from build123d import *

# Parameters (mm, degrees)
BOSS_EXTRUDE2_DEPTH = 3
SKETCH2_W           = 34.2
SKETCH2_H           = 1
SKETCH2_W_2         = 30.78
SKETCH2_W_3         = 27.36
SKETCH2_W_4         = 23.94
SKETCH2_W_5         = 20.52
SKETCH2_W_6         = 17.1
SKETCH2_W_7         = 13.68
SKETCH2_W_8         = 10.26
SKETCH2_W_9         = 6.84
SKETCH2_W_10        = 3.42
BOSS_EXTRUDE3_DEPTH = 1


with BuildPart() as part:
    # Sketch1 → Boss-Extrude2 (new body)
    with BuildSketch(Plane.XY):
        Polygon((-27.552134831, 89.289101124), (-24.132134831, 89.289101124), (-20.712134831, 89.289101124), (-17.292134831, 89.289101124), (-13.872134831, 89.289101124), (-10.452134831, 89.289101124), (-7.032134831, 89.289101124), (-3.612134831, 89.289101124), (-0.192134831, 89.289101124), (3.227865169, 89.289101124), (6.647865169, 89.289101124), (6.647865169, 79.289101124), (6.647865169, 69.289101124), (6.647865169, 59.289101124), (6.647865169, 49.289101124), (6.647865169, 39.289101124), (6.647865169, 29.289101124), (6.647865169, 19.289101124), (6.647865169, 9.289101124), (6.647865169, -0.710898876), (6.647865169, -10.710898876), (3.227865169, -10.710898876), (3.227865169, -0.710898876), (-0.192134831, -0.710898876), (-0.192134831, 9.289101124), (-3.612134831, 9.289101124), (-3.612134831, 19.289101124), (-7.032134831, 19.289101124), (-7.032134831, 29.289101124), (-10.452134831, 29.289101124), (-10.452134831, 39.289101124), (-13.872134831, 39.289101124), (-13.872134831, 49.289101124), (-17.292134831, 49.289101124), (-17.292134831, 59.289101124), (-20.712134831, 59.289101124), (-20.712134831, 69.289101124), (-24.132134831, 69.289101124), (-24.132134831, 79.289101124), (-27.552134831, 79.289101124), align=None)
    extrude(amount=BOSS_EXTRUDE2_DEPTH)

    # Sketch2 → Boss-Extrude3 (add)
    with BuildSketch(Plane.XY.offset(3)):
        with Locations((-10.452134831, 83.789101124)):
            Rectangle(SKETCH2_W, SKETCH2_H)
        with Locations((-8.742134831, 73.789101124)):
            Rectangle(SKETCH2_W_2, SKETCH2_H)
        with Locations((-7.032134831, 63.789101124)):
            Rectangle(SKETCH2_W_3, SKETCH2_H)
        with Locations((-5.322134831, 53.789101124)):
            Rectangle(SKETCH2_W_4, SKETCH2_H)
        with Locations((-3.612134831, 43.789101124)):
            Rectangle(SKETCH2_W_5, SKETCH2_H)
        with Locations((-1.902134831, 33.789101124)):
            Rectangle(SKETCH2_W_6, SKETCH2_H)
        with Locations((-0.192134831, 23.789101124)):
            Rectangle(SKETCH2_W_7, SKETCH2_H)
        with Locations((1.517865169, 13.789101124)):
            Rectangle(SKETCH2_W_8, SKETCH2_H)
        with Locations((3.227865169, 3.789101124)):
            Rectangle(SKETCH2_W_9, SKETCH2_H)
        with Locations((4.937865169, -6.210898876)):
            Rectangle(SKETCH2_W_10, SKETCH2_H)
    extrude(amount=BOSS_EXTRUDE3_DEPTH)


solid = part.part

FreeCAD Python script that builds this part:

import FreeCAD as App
import Part
import Sketcher
from FreeCAD import Vector
Q = App.Units.Quantity


def add_polygon(sketch, points):
    """Adds a closed chain of lines whose ends are joined by coincident constraints."""
    first, n = sketch.GeometryCount, len(points)
    for a, b in zip(points, points[1:] + points[:1]):
        sketch.addGeometry(Part.LineSegment(App.Vector(*a, 0), App.Vector(*b, 0)), False)
    for i in range(n):
        sketch.addConstraint(Sketcher.Constraint("Coincident", first + i, 2, first + (i + 1) % n, 1))

doc = App.newDocument("Part")
body = doc.addObject("PartDesign::Body", "Body")

sketch1 = body.newObject("Sketcher::SketchObject", "Sketch")
sketch1.AttachmentSupport = (doc.getObject("XY_Plane"), [""])
sketch1.MapMode = "FlatFace"
add_polygon(sketch1, [(6.6, 89.3), (-27.6, 89.3), (-27.6, 79.3), (-24.1, 79.3), (-24.1, 69.3), (-20.7, 69.3), (-20.7, 59.3), (-17.3, 59.3), (-17.3, 49.3), (-13.9, 49.3), (-13.9, 39.3), (-10.5, 39.3), (-10.5, 29.3), (-7, 29.3), (-7, 19.3), (-3.6, 19.3), (-3.6, 9.3), (-0.2, 9.3), (-0.2, -0.7), (3.2, -0.7), (3.2, -10.7), (6.6, -10.7)])
sketch1.addConstraint(Sketcher.Constraint("Horizontal", 0))
sketch1.addConstraint(Sketcher.Constraint("Vertical", 1))
sketch1.addConstraint(Sketcher.Constraint("Horizontal", 2))
sketch1.addConstraint(Sketcher.Constraint("Vertical", 3))
sketch1.addConstraint(Sketcher.Constraint("Horizontal", 4))
sketch1.addConstraint(Sketcher.Constraint("Vertical", 5))
sketch1.addConstraint(Sketcher.Constraint("Horizontal", 6))
sketch1.addConstraint(Sketcher.Constraint("Vertical", 7))
sketch1.addConstraint(Sketcher.Constraint("Horizontal", 8))
sketch1.addConstraint(Sketcher.Constraint("Vertical", 9))
sketch1.addConstraint(Sketcher.Constraint("Horizontal", 10))
sketch1.addConstraint(Sketcher.Constraint("Vertical", 11))
sketch1.addConstraint(Sketcher.Constraint("Horizontal", 12))
sketch1.addConstraint(Sketcher.Constraint("Vertical", 13))
sketch1.addConstraint(Sketcher.Constraint("Horizontal", 14))
sketch1.addConstraint(Sketcher.Constraint("Vertical", 15))
sketch1.addConstraint(Sketcher.Constraint("Horizontal", 16))
sketch1.addConstraint(Sketcher.Constraint("Vertical", 17))
sketch1.addConstraint(Sketcher.Constraint("Horizontal", 18))
sketch1.addConstraint(Sketcher.Constraint("Vertical", 19))
sketch1.addConstraint(Sketcher.Constraint("Horizontal", 20))
sketch1.addConstraint(Sketcher.Constraint("Vertical", 21))
sketch1.addConstraint(Sketcher.Constraint("Equal", 2, 4))
sketch1.addConstraint(Sketcher.Constraint("Equal", 4, 6))
sketch1.addConstraint(Sketcher.Constraint("Equal", 6, 8))
sketch1.addConstraint(Sketcher.Constraint("Equal", 8, 10))
sketch1.addConstraint(Sketcher.Constraint("Equal", 10, 12))
sketch1.addConstraint(Sketcher.Constraint("Equal", 12, 14))
sketch1.addConstraint(Sketcher.Constraint("Equal", 14, 16))
sketch1.addConstraint(Sketcher.Constraint("Equal", 16, 18))
sketch1.addConstraint(Sketcher.Constraint("Equal", 18, 20))
sketch1.addConstraint(Sketcher.Constraint("Equal", 1, 3))
sketch1.addConstraint(Sketcher.Constraint("Equal", 3, 5))
sketch1.addConstraint(Sketcher.Constraint("Equal", 5, 7))
sketch1.addConstraint(Sketcher.Constraint("Equal", 7, 9))
sketch1.addConstraint(Sketcher.Constraint("Equal", 9, 11))
sketch1.addConstraint(Sketcher.Constraint("Equal", 11, 13))
sketch1.addConstraint(Sketcher.Constraint("Equal", 13, 15))
sketch1.addConstraint(Sketcher.Constraint("Equal", 15, 17))
sketch1.addConstraint(Sketcher.Constraint("Equal", 17, 19))
sketch1.addConstraint(Sketcher.Constraint("DistanceY", 1, 2, 1, 1, Q("10 mm")))
sketch1.addConstraint(Sketcher.Constraint("DistanceX", 0, 2, 0, 1, Q("34.2 mm")))
sketch1.addConstraint(Sketcher.Constraint("DistanceY", -1, 1, 0, 2, Q("89.289101 mm")))
sketch1.addConstraint(Sketcher.Constraint("DistanceX", 0, 2, -1, 1, Q("27.552135 mm")))
pad1 = body.newObject("PartDesign::Pad", "Pad")
pad1.Profile = sketch1
pad1.Length = 3

sketch2 = body.newObject("Sketcher::SketchObject", "Sketch001")
sketch2.AttachmentSupport = (doc.getObject("XY_Plane"), [""])
sketch2.MapMode = "FlatFace"
sketch2.AttachmentOffset = App.Placement(Vector(0, 0, 3), App.Rotation())
add_polygon(sketch2, [(-27.6, 84.3), (-27.6, 83.3), (6.6, 83.3), (6.6, 84.3)])
add_polygon(sketch2, [(-24.1, 74.3), (-24.1, 73.3), (6.6, 73.3), (6.6, 74.3)])
add_polygon(sketch2, [(-20.7, 64.3), (-20.7, 63.3), (6.6, 63.3), (6.6, 64.3)])
add_polygon(sketch2, [(-17.3, 54.3), (-17.3, 53.3), (6.6, 53.3), (6.6, 54.3)])
add_polygon(sketch2, [(-13.9, 44.3), (-13.9, 43.3), (6.6, 43.3), (6.6, 44.3)])
add_polygon(sketch2, [(-10.5, 34.3), (-10.5, 33.3), (6.6, 33.3), (6.6, 34.3)])
add_polygon(sketch2, [(-7, 24.3), (-7, 23.3), (6.6, 23.3), (6.6, 24.3)])
add_polygon(sketch2, [(-3.6, 14.3), (-3.6, 13.3), (6.6, 13.3), (6.6, 14.3)])
add_polygon(sketch2, [(-0.2, 4.3), (-0.2, 3.3), (6.6, 3.3), (6.6, 4.3)])
add_polygon(sketch2, [(3.2, -5.7), (3.2, -6.7), (6.6, -6.7), (6.6, -5.7)])
sketch2.addConstraint(Sketcher.Constraint("Vertical", 0))
sketch2.addConstraint(Sketcher.Constraint("Horizontal", 1))
sketch2.addConstraint(Sketcher.Constraint("Vertical", 2))
sketch2.addConstraint(Sketcher.Constraint("Horizontal", 3))
sketch2.addConstraint(Sketcher.Constraint("Vertical", 4))
sketch2.addConstraint(Sketcher.Constraint("Horizontal", 5))
sketch2.addConstraint(Sketcher.Constraint("Vertical", 6))
sketch2.addConstraint(Sketcher.Constraint("Horizontal", 7))
sketch2.addConstraint(Sketcher.Constraint("Vertical", 8))
sketch2.addConstraint(Sketcher.Constraint("Horizontal", 9))
sketch2.addConstraint(Sketcher.Constraint("Vertical", 10))
sketch2.addConstraint(Sketcher.Constraint("Horizontal", 11))
sketch2.addConstraint(Sketcher.Constraint("Vertical", 12))
sketch2.addConstraint(Sketcher.Constraint("Horizontal", 13))
sketch2.addConstraint(Sketcher.Constraint("Vertical", 14))
sketch2.addConstraint(Sketcher.Constraint("Horizontal", 15))
sketch2.addConstraint(Sketcher.Constraint("Vertical", 16))
sketch2.addConstraint(Sketcher.Constraint("Horizontal", 17))
sketch2.addConstraint(Sketcher.Constraint("Vertical", 18))
sketch2.addConstraint(Sketcher.Constraint("Horizontal", 19))
sketch2.addConstraint(Sketcher.Constraint("Vertical", 20))
sketch2.addConstraint(Sketcher.Constraint("Horizontal", 21))
sketch2.addConstraint(Sketcher.Constraint("Vertical", 22))
sketch2.addConstraint(Sketcher.Constraint("Horizontal", 23))
sketch2.addConstraint(Sketcher.Constraint("Vertical", 24))
sketch2.addConstraint(Sketcher.Constraint("Horizontal", 25))
sketch2.addConstraint(Sketcher.Constraint("Vertical", 26))
sketch2.addConstraint(Sketcher.Constraint("Horizontal", 27))
sketch2.addConstraint(Sketcher.Constraint("Vertical", 28))
sketch2.addConstraint(Sketcher.Constraint("Horizontal", 29))
sketch2.addConstraint(Sketcher.Constraint("Vertical", 30))
sketch2.addConstraint(Sketcher.Constraint("Horizontal", 31))
sketch2.addConstraint(Sketcher.Constraint("Vertical", 32))
sketch2.addConstraint(Sketcher.Constraint("Horizontal", 33))
sketch2.addConstraint(Sketcher.Constraint("Vertical", 34))
sketch2.addConstraint(Sketcher.Constraint("Horizontal", 35))
sketch2.addConstraint(Sketcher.Constraint("Vertical", 36))
sketch2.addConstraint(Sketcher.Constraint("Horizontal", 37))
sketch2.addConstraint(Sketcher.Constraint("Vertical", 38))
sketch2.addConstraint(Sketcher.Constraint("Horizontal", 39))
sketch2.addConstraint(Sketcher.Constraint("Vertical", 2, 2, 5, 2))
sketch2.addConstraint(Sketcher.Constraint("Vertical", 6, 2, 9, 2))
sketch2.addConstraint(Sketcher.Constraint("Vertical", 10, 2, 13, 2))
sketch2.addConstraint(Sketcher.Constraint("Vertical", 14, 2, 17, 2))
sketch2.addConstraint(Sketcher.Constraint("Vertical", 18, 2, 21, 2))
sketch2.addConstraint(Sketcher.Constraint("Vertical", 22, 2, 25, 2))
sketch2.addConstraint(Sketcher.Constraint("Vertical", 26, 2, 29, 2))
sketch2.addConstraint(Sketcher.Constraint("Vertical", 30, 2, 33, 2))
sketch2.addConstraint(Sketcher.Constraint("Vertical", 34, 2, 37, 2))
sketch2.addConstraint(Sketcher.Constraint("Equal", 2, 4))
sketch2.addConstraint(Sketcher.Constraint("Equal", 6, 8))
sketch2.addConstraint(Sketcher.Constraint("Equal", 10, 12))
sketch2.addConstraint(Sketcher.Constraint("Equal", 14, 16))
sketch2.addConstraint(Sketcher.Constraint("Equal", 18, 20))
sketch2.addConstraint(Sketcher.Constraint("Equal", 22, 24))
sketch2.addConstraint(Sketcher.Constraint("Equal", 26, 28))
sketch2.addConstraint(Sketcher.Constraint("Equal", 30, 32))
sketch2.addConstraint(Sketcher.Constraint("Equal", 34, 36))
sketch2.addConstraint(Sketcher.Constraint("DistanceY", 0, 2, 0, 1, Q("1 mm")))
sketch2.addConstraint(Sketcher.Constraint("DistanceX", 1, 1, 1, 2, Q("34.2 mm")))
sketch2.addConstraint(Sketcher.Constraint("DistanceX", 21, 1, 21, 2, Q("17.1 mm")))
sketch2.addConstraint(Sketcher.Constraint("DistanceY", 4, 2, 0, 2, Q("10 mm")))
sketch2.addConstraint(Sketcher.Constraint("DistanceY", 8, 2, 4, 2, Q("10 mm")))
sketch2.addConstraint(Sketcher.Constraint("DistanceY", 12, 2, 8, 2, Q("10 mm")))
sketch2.addConstraint(Sketcher.Constraint("DistanceY", 16, 2, 12, 2, Q("10 mm")))
sketch2.addConstraint(Sketcher.Constraint("DistanceY", 20, 2, 16, 2, Q("10 mm")))
sketch2.addConstraint(Sketcher.Constraint("DistanceY", 24, 2, 20, 2, Q("10 mm")))
sketch2.addConstraint(Sketcher.Constraint("DistanceY", 28, 2, 24, 2, Q("10 mm")))
sketch2.addConstraint(Sketcher.Constraint("DistanceY", 32, 2, 28, 2, Q("10 mm")))
sketch2.addConstraint(Sketcher.Constraint("DistanceY", 36, 2, 32, 2, Q("10 mm")))
sketch2.addConstraint(Sketcher.Constraint("DistanceX", 5, 1, 5, 2, Q("30.78 mm")))
sketch2.addConstraint(Sketcher.Constraint("DistanceX", 9, 1, 9, 2, Q("27.36 mm")))
sketch2.addConstraint(Sketcher.Constraint("DistanceX", 13, 1, 13, 2, Q("23.94 mm")))
sketch2.addConstraint(Sketcher.Constraint("DistanceX", 17, 1, 17, 2, Q("20.52 mm")))
sketch2.addConstraint(Sketcher.Constraint("DistanceX", 25, 1, 25, 2, Q("13.68 mm")))
sketch2.addConstraint(Sketcher.Constraint("DistanceX", 29, 1, 29, 2, Q("10.26 mm")))
sketch2.addConstraint(Sketcher.Constraint("DistanceX", 33, 1, 33, 2, Q("6.84 mm")))
sketch2.addConstraint(Sketcher.Constraint("DistanceX", 37, 1, 37, 2, Q("3.42 mm")))
sketch2.addConstraint(Sketcher.Constraint("DistanceY", -1, 1, 0, 2, Q("83.289101 mm")))
sketch2.addConstraint(Sketcher.Constraint("DistanceX", 0, 2, -1, 1, Q("27.552135 mm")))
pad2 = body.newObject("PartDesign::Pad", "Pad001")
pad2.Profile = sketch2
pad2.Length = 1

doc.recompute()
